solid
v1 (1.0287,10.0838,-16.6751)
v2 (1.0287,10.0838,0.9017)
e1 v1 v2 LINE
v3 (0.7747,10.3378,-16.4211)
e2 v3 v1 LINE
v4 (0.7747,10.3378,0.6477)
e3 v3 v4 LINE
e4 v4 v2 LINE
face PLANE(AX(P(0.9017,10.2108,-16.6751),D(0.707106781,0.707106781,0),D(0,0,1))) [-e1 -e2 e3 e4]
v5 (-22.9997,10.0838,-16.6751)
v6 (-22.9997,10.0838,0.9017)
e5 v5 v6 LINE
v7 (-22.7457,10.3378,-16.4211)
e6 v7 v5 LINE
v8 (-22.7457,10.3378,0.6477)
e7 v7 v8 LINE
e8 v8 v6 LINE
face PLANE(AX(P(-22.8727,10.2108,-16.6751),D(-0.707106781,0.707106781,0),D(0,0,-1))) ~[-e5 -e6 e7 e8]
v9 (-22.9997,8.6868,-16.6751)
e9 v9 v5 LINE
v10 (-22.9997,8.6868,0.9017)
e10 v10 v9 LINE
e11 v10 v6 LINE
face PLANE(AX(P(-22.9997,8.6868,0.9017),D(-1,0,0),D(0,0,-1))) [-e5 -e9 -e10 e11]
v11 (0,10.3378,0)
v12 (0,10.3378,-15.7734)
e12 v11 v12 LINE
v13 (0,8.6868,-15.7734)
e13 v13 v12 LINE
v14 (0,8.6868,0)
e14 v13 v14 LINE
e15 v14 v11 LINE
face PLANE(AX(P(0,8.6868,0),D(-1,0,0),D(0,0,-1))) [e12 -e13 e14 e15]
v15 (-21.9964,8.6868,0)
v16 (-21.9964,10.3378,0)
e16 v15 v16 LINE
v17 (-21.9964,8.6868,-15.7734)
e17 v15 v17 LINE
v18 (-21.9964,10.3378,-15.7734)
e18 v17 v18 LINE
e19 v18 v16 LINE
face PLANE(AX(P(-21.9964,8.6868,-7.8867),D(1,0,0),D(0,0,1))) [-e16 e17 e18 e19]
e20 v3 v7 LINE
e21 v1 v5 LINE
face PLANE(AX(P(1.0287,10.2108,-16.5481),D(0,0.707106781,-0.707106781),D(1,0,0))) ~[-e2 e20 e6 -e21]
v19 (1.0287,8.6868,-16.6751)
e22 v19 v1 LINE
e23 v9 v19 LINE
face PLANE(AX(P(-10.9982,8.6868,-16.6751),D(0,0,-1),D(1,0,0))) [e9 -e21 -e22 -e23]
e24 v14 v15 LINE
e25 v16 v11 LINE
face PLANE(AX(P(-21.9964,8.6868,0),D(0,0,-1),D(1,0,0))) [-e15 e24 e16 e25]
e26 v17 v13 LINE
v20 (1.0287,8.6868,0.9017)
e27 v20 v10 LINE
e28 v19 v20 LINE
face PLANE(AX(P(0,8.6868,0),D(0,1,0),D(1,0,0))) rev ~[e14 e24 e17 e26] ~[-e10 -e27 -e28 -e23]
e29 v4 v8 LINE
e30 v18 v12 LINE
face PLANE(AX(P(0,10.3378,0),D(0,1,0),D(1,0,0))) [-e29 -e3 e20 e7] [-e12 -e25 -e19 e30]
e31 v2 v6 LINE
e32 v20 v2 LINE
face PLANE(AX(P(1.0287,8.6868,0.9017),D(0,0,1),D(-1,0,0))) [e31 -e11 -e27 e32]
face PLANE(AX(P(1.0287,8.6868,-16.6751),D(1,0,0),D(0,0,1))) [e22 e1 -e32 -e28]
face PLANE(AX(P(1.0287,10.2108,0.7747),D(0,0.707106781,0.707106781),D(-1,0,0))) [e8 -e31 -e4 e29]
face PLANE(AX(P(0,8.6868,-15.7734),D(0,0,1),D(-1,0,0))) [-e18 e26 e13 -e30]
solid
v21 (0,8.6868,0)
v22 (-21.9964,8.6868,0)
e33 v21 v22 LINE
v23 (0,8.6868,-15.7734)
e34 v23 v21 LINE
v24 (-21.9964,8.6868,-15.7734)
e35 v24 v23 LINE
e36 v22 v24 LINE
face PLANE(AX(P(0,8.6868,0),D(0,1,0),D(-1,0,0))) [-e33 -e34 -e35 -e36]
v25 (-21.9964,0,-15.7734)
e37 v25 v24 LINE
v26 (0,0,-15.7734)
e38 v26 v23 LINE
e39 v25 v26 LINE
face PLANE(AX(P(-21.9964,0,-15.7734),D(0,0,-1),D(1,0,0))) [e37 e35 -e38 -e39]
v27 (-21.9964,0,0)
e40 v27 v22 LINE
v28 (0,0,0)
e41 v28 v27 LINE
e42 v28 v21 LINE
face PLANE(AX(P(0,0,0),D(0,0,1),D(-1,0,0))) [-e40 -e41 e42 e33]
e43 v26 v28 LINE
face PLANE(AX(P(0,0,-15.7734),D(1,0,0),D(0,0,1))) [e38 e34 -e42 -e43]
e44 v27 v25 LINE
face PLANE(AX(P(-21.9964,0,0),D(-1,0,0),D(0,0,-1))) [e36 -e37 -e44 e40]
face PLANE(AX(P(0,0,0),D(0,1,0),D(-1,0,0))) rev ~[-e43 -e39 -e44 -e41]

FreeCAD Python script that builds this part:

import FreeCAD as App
import Part
import Sketcher

V = App.Vector
Q = App.Units.Quantity


def edges_at(feature, points):
    """Names of the edges that pass closest to the given points."""
    edges = feature.Shape.Edges
    near = lambda p: min(range(len(edges)), key=lambda i: edges[i].distToShape(Part.Vertex(*p))[0])
    return sorted({f"Edge{near(p) + 1}" for p in points})


def add_polygon(sketch, points):
    """Adds a closed chain of lines whose ends are joined by coincident constraints."""
    first, n = sketch.GeometryCount, len(points)
    for a, b in zip(points, points[1:] + points[:1]):
        sketch.addGeometry(Part.LineSegment(App.Vector(*a, 0), App.Vector(*b, 0)), False)
    for i in range(n):
        sketch.addConstraint(Sketcher.Constraint("Coincident", first + i, 2, first + (i + 1) % n, 1))

doc = App.newDocument("Part")
body = doc.addObject("PartDesign::Body", "Body")
body.AllowCompound = True

sketch1 = body.newObject("Sketcher::SketchObject", "Sketch")
sketch1.AttachmentSupport = (doc.getObject("XZ_Plane"), [""])
sketch1.MapMode = "FlatFace"
add_polygon(sketch1, [(-22, 0), (0, 0), (0, -16), (-22, -16)])
sketch1.addConstraint([
    Sketcher.Constraint("Horizontal", 0),
    Sketcher.Constraint("Vertical", 1),
    Sketcher.Constraint("Horizontal", 2),
    Sketcher.Constraint("Vertical", 3),
    Sketcher.Constraint("Coincident", 0, 2, -1, 1),
    Sketcher.Constraint("DistanceX", 0, 1, 0, 2, Q("0.866 in")),
    Sketcher.Constraint("DistanceY", 1, 2, 1, 1, Q("0.621 in")),
])
pad1 = body.newObject("PartDesign::Pad", "Pad")
pad1.Profile = sketch1
pad1.Length = Q("0.342 in")
pad1.Reversed = True

sketch2 = body.newObject("Sketcher::SketchObject", "Sketch001")
sketch2.AttachmentSupport = (doc.getObject("XZ_Plane"), [""])
sketch2.MapMode = "FlatFace"
sketch2.AttachmentOffset = App.Placement(V(0, 0, -0.342 * 25.4), App.Rotation())
add_polygon(sketch2, [(1, -17), (-23, -17), (-23, 1), (1, 1)])
add_polygon(sketch2, [(0, 0), (-22, 0), (-22, -16), (0, -16)])
sketch2.addConstraint([
    Sketcher.Constraint("Horizontal", 0),
    Sketcher.Constraint("Vertical", 1),
    Sketcher.Constraint("Horizontal", 2),
    Sketcher.Constraint("Vertical", 3),
    Sketcher.Constraint("Horizontal", 4),
    Sketcher.Constraint("Vertical", 5),
    Sketcher.Constraint("Horizontal", 6),
    Sketcher.Constraint("Vertical", 7),
    Sketcher.Constraint("Coincident", 7, 2, -1, 1),
    Sketcher.Constraint("DistanceX", 0, 2, 0, 1, Q("0.946 in")),
    Sketcher.Constraint("DistanceY", 1, 1, 1, 2, Q("0.692 in")),
    Sketcher.Constraint("DistanceX", 4, 2, 4, 1, Q("0.866 in")),
    Sketcher.Constraint("DistanceY", 5, 2, 5, 1, Q("0.621 in")),
    Sketcher.Constraint("DistanceX", 0, 2, -1, 1, Q("0.9055 in")),
    Sketcher.Constraint("DistanceY", 0, 2, -1, 1, Q("0.6565 in")),
])
pad2 = body.newObject("PartDesign::Pad", "Pad001")
pad2.Profile = sketch2
pad2.Length = Q("0.065 in")
pad2.Reversed = True
doc.recompute()

chamfer = body.newObject("PartDesign::Chamfer", "Chamfer")
chamfer.Base = (pad2, edges_at(pad2, [
    (-10.986, 10.338, 0.902),
    (1.029, 10.338, -7.887),
    (-10.986, 10.338, -16.675),
    (-23, 10.338, -7.887),
]))
chamfer.Size = Q("0.01 in")

doc.recompute()
